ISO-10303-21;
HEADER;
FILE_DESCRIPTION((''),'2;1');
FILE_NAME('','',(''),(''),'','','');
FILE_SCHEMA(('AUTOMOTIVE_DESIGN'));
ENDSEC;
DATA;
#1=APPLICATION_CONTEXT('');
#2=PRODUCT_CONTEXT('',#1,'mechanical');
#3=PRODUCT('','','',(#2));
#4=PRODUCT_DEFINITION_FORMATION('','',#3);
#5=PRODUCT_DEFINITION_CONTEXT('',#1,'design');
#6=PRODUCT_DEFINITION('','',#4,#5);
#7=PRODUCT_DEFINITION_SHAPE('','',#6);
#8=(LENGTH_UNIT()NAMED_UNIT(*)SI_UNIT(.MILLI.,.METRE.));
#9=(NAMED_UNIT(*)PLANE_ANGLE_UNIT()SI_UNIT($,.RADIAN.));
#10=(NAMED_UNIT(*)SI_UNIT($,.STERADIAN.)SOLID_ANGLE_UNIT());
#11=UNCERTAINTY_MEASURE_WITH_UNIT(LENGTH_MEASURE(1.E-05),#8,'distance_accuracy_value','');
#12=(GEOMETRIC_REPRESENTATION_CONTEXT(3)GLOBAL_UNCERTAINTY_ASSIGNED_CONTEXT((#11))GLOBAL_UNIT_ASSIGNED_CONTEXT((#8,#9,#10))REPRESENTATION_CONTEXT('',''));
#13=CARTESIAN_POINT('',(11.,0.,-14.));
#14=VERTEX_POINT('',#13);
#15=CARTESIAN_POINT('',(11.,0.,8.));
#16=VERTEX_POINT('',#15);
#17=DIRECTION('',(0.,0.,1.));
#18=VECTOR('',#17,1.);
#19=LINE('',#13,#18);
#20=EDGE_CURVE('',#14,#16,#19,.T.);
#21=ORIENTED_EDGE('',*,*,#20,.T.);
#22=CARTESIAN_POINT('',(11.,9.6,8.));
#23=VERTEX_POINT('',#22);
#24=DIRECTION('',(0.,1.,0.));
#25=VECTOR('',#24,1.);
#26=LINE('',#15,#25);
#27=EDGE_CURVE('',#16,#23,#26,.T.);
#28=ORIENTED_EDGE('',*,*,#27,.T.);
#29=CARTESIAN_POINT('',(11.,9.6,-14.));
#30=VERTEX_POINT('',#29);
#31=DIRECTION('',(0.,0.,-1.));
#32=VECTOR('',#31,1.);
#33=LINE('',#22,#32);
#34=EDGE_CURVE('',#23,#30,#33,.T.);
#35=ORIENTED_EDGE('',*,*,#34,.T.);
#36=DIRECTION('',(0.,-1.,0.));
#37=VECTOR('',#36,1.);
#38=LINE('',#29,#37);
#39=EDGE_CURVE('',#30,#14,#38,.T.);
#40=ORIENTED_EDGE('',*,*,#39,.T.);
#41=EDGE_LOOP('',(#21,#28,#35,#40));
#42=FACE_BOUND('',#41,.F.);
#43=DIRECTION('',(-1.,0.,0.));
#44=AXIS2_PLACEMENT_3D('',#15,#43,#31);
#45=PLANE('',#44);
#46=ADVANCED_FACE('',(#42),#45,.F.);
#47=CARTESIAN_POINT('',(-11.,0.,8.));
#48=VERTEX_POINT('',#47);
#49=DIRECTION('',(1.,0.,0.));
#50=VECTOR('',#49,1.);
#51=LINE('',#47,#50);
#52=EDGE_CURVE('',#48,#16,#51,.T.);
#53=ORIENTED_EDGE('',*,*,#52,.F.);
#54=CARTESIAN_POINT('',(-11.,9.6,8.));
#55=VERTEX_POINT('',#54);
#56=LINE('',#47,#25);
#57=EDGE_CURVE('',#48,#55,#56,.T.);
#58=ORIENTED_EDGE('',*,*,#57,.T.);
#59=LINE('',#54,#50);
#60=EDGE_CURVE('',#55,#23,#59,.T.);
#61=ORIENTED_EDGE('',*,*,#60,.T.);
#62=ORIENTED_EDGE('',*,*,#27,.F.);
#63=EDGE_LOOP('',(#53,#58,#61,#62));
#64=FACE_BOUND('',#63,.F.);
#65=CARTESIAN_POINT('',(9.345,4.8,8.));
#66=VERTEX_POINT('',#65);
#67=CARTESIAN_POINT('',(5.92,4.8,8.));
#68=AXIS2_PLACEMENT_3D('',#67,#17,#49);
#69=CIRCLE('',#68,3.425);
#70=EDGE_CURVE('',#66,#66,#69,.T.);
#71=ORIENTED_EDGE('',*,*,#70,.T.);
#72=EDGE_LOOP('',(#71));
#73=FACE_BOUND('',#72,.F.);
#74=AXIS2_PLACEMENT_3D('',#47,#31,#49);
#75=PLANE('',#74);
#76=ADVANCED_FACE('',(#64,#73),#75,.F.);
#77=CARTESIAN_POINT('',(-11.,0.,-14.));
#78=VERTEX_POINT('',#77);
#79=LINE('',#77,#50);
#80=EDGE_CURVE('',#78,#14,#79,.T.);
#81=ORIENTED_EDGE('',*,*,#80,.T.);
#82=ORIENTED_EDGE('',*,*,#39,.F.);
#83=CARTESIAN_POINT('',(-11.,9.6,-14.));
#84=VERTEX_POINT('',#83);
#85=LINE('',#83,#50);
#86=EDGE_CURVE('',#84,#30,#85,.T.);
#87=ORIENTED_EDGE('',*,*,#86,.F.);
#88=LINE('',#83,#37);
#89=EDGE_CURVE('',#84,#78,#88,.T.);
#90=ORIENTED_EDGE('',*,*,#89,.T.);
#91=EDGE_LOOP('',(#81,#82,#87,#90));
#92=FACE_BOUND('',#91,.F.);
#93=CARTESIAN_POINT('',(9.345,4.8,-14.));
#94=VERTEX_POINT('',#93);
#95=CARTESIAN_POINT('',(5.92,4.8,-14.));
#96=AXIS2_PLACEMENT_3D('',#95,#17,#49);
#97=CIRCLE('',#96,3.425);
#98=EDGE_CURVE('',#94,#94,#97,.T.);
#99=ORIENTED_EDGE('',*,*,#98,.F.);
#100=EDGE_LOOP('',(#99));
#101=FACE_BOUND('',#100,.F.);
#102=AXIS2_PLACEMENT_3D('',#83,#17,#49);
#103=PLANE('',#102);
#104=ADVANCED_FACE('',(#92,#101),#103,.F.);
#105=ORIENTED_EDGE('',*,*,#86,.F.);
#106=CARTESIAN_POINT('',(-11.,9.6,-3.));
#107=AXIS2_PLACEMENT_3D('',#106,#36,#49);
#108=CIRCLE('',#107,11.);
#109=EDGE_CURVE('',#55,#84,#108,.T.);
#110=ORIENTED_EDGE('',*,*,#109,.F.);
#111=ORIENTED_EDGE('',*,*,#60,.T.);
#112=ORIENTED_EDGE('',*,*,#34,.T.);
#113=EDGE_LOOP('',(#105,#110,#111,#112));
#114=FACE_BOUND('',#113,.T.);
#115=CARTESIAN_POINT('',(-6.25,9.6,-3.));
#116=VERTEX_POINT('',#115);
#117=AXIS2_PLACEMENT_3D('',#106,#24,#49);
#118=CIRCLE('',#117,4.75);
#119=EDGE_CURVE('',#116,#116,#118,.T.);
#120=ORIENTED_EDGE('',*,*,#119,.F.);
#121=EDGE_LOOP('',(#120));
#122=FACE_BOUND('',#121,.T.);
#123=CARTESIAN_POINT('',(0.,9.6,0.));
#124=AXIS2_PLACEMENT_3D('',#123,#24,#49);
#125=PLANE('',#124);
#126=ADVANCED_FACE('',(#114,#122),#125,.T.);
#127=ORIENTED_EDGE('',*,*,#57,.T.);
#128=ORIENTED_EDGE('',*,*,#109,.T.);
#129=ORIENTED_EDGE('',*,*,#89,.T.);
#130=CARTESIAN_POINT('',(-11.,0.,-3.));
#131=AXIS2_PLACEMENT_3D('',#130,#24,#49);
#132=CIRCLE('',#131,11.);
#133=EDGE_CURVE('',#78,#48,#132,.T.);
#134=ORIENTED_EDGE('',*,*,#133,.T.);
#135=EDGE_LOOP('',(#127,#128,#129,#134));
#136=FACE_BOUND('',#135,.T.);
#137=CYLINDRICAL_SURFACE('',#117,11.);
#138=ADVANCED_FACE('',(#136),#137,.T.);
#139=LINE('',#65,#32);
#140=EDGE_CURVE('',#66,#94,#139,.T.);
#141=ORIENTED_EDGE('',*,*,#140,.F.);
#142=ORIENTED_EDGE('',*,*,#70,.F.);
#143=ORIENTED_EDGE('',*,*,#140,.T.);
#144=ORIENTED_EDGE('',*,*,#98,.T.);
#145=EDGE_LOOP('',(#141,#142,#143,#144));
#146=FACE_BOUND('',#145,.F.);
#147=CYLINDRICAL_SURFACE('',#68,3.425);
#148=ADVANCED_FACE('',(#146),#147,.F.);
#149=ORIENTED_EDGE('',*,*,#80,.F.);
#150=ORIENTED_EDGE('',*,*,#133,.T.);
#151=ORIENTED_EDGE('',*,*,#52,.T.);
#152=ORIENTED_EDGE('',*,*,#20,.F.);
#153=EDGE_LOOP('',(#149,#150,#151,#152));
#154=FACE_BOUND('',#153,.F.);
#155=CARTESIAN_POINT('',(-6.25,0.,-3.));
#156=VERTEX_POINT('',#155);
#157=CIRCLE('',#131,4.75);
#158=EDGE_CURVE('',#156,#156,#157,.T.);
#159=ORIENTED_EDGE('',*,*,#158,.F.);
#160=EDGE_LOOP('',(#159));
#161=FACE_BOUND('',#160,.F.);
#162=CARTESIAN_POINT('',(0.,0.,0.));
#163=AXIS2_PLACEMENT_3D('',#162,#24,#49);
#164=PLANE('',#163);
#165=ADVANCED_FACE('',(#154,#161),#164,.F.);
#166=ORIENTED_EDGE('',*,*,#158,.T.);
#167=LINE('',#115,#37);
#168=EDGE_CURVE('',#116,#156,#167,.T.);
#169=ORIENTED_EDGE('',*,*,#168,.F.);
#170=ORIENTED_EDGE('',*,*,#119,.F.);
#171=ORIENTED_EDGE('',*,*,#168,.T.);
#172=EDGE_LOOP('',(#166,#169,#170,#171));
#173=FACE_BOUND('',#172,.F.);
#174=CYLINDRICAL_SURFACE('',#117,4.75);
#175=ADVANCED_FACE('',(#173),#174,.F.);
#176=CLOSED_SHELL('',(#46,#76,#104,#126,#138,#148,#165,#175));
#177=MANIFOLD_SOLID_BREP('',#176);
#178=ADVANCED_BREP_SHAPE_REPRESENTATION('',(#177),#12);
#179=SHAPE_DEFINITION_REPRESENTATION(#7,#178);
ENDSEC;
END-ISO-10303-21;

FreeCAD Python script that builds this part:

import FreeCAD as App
import Part
import Sketcher
from FreeCAD import Vector


def add_polygon(sketch, points):
    """Adds a closed chain of lines whose ends are joined by coincident constraints."""
    first, n = sketch.GeometryCount, len(points)
    for a, b in zip(points, points[1:] + points[:1]):
        sketch.addGeometry(Part.LineSegment(App.Vector(*a, 0), App.Vector(*b, 0)), False)
    for i in range(n):
        sketch.addConstraint(Sketcher.Constraint("Coincident", first + i, 2, first + (i + 1) % n, 1))

doc = App.newDocument("Part")
body = doc.addObject("PartDesign::Body", "Body")

# Sketch on XZ plane
sketch1 = body.newObject("Sketcher::SketchObject", "Sketch")
sketch1.AttachmentSupport = (doc.getObject("XZ_Plane"), [""])
sketch1.MapMode = "FlatFace"
add_polygon(sketch1, [(-11, -8), (-11, 8), (11, 8), (11, -8)])  # lines 0-3
sketch1.addConstraint([
    Sketcher.Constraint("Vertical", 0),
    Sketcher.Constraint("Horizontal", 1),
    Sketcher.Constraint("Vertical", 2),
    Sketcher.Constraint("Horizontal", 3),
    Sketcher.Constraint("Symmetric", 0, 2, 2, 2, -1, 1),
    Sketcher.Constraint("DistanceX", 1, 1, 1, 2, 22.0),
    Sketcher.Constraint("DistanceY", 0, 1, 0, 2, 16.0),
])
pad1 = body.newObject("PartDesign::Pad", "Pad")
pad1.Profile = sketch1
pad1.Length = 9.6
pad1.Reversed = True

# Sketch on XZ plane
sketch2 = body.newObject("Sketcher::SketchObject", "Sketch001")
sketch2.AttachmentSupport = (doc.getObject("XZ_Plane"), [""])
sketch2.MapMode = "FlatFace"
sketch2.AttachmentOffset = App.Placement(Vector(0, 0, -9.6), App.Rotation())
add_polygon(sketch2, [(-11, -14), (-11, 8), (11, 8), (11, -14)])  # lines 0-3
sketch2.addConstraint([
    Sketcher.Constraint("Vertical", 0),
    Sketcher.Constraint("Horizontal", 1),
    Sketcher.Constraint("Vertical", 2),
    Sketcher.Constraint("Horizontal", 3),
    Sketcher.Constraint("Equal", 3, 0),
    Sketcher.Constraint("DistanceX", 1, 1, 1, 2, 22.0),
    Sketcher.Constraint("DistanceX", 0, 2, -1, 1, 11.0),
    Sketcher.Constraint("DistanceY", -1, 1, 0, 2, 8.0),
])
pad2 = body.newObject("PartDesign::Pad", "Pad001")
pad2.Profile = sketch2
pad2.Length = 9.6

# Sketch on XZ plane
sketch3 = body.newObject("Sketcher::SketchObject", "Sketch002")
sketch3.AttachmentSupport = (doc.getObject("XZ_Plane"), [""])
sketch3.MapMode = "FlatFace"
sketch3.AttachmentOffset = App.Placement(Vector(0, 0, -9.6), App.Rotation())
sketch3.addGeometry(Part.Circle(Vector(-11, -3, 0), Vector(0, 0, 1), 11), False)
sketch3.addConstraint([
    Sketcher.Constraint("Diameter", 0, 22.0),
    Sketcher.Constraint("DistanceX", 0, 3, -1, 1, 11.0),
    Sketcher.Constraint("DistanceY", 0, 3, -1, 1, 3.0),
])
pad3 = body.newObject("PartDesign::Pad", "Pad002")
pad3.Profile = sketch3
pad3.Length = 9.6

# Sketch on XY plane
sketch4 = body.newObject("Sketcher::SketchObject", "Sketch003")
sketch4.AttachmentSupport = (doc.getObject("XY_Plane"), [""])
sketch4.MapMode = "FlatFace"
sketch4.AttachmentOffset = App.Placement(Vector(0, 0, 8), App.Rotation())
sketch4.addGeometry(Part.Circle(Vector(5.9, 4.8, 0), Vector(0, 0, 1), 3.4), False)
sketch4.addConstraint([
    Sketcher.Constraint("Diameter", 0, 6.85),
    Sketcher.Constraint("DistanceY", -1, 1, 0, 3, 4.8),
    Sketcher.Constraint("DistanceX", -1, 1, 0, 3, 5.92),
])
pocket1 = body.newObject("PartDesign::Pocket", "Pocket")
pocket1.Profile = sketch4
pocket1.Type = "ThroughAll"

# Sketch on XZ plane
sketch5 = body.newObject("Sketcher::SketchObject", "Sketch004")
sketch5.AttachmentSupport = (doc.getObject("XZ_Plane"), [""])
sketch5.MapMode = "FlatFace"
sketch5.AttachmentOffset = App.Placement(Vector(0, 0, -9.6), App.Rotation())
sketch5.addGeometry(Part.Circle(Vector(-11, -3, 0), Vector(0, 0, 1), 6), False)
sketch5.addConstraint([
    Sketcher.Constraint("Diameter", 0, 12.7),
    Sketcher.Constraint("DistanceX", 0, 3, -1, 1, 11.0),
    Sketcher.Constraint("DistanceY", 0, 3, -1, 1, 3.0),
])
pocket2 = body.newObject("PartDesign::Pocket", "Pocket001")
pocket2.Profile = sketch5
pocket2.Type = "UpToFirst"
pocket2.Reversed = True

# Sketch on XZ plane
sketch6 = body.newObject("Sketcher::SketchObject", "Sketch005")
sketch6.AttachmentSupport = (doc.getObject("XZ_Plane"), [""])
sketch6.MapMode = "FlatFace"
sketch6.AttachmentOffset = App.Placement(Vector(0, 0, -9.6), App.Rotation())
sketch6.addGeometry([
    Part.Circle(Vector(-11, -3, 0), Vector(0, 0, 1), 6.3),
    Part.Circle(Vector(-11, -3, 0), Vector(0, 0, 1), 4.8),
], False)
sketch6.addConstraint([
    Sketcher.Constraint("Coincident", 1, 3, 0, 3),
    Sketcher.Constraint("Diameter", 1, 9.5),
    Sketcher.Constraint("Diameter", 0, 12.7),
    Sketcher.Constraint("DistanceX", 0, 3, -1, 1, 11.0),
    Sketcher.Constraint("DistanceY", 0, 3, -1, 1, 3.0),
])
pad4 = body.newObject("PartDesign::Pad", "Pad003")
pad4.Profile = sketch6
pad4.Length = 9.6

doc.recompute()
